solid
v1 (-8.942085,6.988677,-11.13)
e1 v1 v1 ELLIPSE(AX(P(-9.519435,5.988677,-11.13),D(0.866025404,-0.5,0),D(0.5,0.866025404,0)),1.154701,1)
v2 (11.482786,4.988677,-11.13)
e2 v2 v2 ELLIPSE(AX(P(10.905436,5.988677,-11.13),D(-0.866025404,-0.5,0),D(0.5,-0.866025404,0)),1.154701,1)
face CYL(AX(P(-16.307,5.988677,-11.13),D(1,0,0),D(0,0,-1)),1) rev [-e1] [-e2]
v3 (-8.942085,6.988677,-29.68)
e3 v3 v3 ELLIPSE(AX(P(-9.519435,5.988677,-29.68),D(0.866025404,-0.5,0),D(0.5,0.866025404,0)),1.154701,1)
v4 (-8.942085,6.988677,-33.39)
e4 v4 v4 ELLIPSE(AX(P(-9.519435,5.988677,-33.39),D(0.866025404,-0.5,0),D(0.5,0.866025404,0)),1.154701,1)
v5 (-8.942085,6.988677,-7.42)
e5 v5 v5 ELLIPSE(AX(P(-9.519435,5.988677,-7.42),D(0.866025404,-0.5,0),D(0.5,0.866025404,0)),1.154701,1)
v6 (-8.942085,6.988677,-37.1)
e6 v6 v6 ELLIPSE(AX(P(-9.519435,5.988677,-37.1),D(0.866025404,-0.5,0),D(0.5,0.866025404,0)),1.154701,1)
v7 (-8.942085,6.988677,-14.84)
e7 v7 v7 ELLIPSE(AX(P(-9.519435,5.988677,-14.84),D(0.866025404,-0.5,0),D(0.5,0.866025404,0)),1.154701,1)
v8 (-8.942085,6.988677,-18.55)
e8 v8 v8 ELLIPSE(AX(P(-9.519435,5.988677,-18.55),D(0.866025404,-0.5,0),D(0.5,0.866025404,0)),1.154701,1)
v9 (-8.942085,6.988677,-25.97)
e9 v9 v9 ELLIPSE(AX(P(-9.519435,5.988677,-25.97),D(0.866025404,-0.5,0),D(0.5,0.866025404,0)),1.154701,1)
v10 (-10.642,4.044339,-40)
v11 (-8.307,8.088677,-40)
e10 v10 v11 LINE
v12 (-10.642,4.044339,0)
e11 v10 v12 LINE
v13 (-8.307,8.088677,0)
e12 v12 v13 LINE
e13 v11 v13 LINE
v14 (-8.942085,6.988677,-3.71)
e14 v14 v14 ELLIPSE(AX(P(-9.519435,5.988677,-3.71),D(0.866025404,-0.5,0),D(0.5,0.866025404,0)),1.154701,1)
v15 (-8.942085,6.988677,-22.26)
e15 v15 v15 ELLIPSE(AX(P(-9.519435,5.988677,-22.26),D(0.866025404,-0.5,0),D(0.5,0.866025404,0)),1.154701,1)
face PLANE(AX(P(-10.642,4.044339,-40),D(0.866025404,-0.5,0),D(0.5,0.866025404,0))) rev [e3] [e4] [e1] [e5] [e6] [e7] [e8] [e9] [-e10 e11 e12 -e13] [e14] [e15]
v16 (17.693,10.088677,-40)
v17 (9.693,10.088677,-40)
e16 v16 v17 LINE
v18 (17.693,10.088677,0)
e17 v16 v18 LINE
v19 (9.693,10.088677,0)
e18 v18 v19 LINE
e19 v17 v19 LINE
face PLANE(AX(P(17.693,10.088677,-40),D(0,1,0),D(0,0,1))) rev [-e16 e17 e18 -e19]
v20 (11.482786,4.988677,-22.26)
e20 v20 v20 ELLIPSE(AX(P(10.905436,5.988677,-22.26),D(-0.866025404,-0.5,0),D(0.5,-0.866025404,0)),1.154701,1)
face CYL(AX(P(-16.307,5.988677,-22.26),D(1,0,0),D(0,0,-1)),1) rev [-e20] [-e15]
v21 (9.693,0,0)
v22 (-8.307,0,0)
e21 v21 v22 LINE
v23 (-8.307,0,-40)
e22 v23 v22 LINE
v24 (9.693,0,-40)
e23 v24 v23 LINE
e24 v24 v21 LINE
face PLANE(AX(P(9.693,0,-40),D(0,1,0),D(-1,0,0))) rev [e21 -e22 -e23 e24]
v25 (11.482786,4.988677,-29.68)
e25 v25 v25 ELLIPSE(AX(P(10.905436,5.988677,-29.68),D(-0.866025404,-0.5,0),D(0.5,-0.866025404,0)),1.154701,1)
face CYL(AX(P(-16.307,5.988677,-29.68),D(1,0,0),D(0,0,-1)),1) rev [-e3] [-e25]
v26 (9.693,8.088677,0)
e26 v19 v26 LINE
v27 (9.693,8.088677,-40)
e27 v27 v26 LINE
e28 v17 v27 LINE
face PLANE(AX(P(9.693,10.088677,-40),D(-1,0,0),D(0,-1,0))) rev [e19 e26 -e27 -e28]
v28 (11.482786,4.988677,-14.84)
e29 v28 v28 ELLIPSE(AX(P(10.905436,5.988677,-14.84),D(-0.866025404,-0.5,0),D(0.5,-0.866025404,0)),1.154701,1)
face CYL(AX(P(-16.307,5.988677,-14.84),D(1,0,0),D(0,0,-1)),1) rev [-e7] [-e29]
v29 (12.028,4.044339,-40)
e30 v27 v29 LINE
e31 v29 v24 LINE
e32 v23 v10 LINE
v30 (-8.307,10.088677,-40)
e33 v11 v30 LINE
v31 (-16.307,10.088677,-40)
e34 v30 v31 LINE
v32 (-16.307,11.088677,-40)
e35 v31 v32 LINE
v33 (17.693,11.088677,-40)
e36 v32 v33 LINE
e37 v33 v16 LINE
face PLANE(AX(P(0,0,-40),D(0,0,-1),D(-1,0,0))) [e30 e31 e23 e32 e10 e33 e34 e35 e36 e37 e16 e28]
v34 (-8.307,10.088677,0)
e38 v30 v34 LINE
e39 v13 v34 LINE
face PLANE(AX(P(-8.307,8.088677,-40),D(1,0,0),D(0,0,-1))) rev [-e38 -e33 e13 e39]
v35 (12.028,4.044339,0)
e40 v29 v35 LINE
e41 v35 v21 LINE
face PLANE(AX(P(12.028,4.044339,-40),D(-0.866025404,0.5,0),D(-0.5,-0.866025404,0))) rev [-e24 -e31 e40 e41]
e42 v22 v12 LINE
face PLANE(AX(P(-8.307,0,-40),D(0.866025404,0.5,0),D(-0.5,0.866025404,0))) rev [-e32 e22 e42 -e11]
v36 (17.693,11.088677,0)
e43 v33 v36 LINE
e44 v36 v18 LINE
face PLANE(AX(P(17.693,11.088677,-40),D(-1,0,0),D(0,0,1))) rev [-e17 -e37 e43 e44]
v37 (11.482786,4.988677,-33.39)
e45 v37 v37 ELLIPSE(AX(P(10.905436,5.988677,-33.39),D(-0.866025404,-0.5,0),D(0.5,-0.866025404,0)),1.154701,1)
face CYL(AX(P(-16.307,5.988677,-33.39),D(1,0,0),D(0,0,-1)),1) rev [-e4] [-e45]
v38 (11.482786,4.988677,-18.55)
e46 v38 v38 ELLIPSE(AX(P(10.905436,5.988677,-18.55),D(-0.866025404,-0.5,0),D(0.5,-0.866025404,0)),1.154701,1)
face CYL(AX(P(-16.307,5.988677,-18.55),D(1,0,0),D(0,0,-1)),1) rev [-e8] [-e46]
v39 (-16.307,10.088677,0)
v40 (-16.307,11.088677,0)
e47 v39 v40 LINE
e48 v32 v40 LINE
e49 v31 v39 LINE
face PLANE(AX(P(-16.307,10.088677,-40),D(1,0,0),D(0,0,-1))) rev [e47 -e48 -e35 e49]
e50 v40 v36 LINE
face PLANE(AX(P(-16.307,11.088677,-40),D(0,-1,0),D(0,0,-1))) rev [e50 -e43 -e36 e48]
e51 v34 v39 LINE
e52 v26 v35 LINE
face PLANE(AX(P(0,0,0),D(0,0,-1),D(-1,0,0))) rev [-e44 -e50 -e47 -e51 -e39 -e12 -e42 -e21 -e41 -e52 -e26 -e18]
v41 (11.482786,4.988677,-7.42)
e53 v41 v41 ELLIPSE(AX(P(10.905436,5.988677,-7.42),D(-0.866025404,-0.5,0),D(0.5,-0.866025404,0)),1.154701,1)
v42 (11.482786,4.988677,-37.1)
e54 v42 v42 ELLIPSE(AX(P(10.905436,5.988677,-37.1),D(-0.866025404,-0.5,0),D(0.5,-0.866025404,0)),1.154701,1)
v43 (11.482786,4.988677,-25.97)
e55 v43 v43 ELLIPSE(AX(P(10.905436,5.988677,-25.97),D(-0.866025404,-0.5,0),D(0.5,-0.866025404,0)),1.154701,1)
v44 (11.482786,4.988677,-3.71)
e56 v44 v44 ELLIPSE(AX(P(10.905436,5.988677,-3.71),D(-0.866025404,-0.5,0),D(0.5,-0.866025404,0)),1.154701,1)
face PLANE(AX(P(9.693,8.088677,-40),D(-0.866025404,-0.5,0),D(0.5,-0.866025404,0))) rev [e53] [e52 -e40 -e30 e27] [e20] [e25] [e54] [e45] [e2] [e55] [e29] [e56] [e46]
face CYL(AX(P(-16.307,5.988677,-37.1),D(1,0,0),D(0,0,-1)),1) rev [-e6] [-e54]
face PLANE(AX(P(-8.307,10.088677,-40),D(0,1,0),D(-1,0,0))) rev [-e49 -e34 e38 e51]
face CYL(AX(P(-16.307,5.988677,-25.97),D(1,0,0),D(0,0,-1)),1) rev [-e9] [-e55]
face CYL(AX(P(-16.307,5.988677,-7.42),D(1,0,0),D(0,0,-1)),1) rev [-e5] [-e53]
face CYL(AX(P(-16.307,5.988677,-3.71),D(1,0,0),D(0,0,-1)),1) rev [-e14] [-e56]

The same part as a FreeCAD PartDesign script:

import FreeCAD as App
import Part
import Sketcher
from FreeCAD import Vector
Q = App.Units.Quantity


def add_polygon(sketch, points):
    """Adds a closed chain of lines whose ends are joined by coincident constraints."""
    first, n = sketch.GeometryCount, len(points)
    for a, b in zip(points, points[1:] + points[:1]):
        sketch.addGeometry(Part.LineSegment(App.Vector(*a, 0), App.Vector(*b, 0)), False)
    for i in range(n):
        sketch.addConstraint(Sketcher.Constraint("Coincident", first + i, 2, first + (i + 1) % n, 1))

doc = App.newDocument("Part")
body = doc.addObject("PartDesign::Body", "Body")

sketch1 = body.newObject("Sketcher::SketchObject", "Sketch")
sketch1.AttachmentSupport = (doc.getObject("XY_Plane"), [""])
sketch1.MapMode = "FlatFace"
add_polygon(sketch1, [(-8.3, 0), (9.7, 0), (12, 4), (9.7, 8.1), (9.7, 10.1), (17.7, 10.1), (17.7, 11.1), (-16.3, 11.1), (-16.3, 10.1), (-8.3, 10.1), (-8.3, 8.1), (-10.6, 4)])
sketch1.addConstraint([
    Sketcher.Constraint("Horizontal", 0),
    Sketcher.Constraint("Vertical", 3),
    Sketcher.Constraint("Horizontal", 4),
    Sketcher.Constraint("Vertical", 5),
    Sketcher.Constraint("Horizontal", 6),
    Sketcher.Constraint("Vertical", 7),
    Sketcher.Constraint("Horizontal", 8),
    Sketcher.Constraint("Vertical", 9),
    Sketcher.Constraint("PointOnObject", 0, 2, -1),
    Sketcher.Constraint("Parallel", 1, 10),
    Sketcher.Constraint("Parallel", 2, 11),
    Sketcher.Constraint("Horizontal", 4, 2, 7, 2),
    Sketcher.Constraint("Horizontal", 2, 2, 9, 2),
    Sketcher.Constraint("Horizontal", 1, 2, 10, 2),
    Sketcher.Constraint("Vertical", 0, 2, 2, 2),
    Sketcher.Constraint("Vertical", 9, 2, 11, 2),
    Sketcher.Constraint("Equal", 4, 8),
    Sketcher.Constraint("DistanceX", 0, 1, 0, 2, 18.0),
    Sketcher.Constraint("DistanceX", 4, 1, 4, 2, 8.0),
    Sketcher.Constraint("DistanceY", 3, 1, 3, 2, 2.0),
    Sketcher.Constraint("DistanceY", 5, 1, 5, 2, 1.0),
    Sketcher.Constraint("Angle", 1, Q("60 deg")),
    Sketcher.Constraint("Distance", 1, 4.67),
    Sketcher.Constraint("DistanceX", -1, 1, 0, 2, 9.693),
])
pad1 = body.newObject("PartDesign::Pad", "Pad")
pad1.Profile = sketch1
pad1.Length = 40
pad1.Reversed = True

sketch2 = body.newObject("Sketcher::SketchObject", "Sketch001")
sketch2.AttachmentSupport = (doc.getObject("YZ_Plane"), [""])
sketch2.MapMode = "FlatFace"
sketch2.addGeometry(Part.Circle(Vector(6, -3.7, 0), Vector(0, 0, 1), 1), False)
sketch2.addConstraint([
    Sketcher.Constraint("Diameter", 0, 2.0),
    Sketcher.Constraint("DistanceY", 0, 3, -1, 1, 3.71),
    Sketcher.Constraint("DistanceX", -1, 1, 0, 3, 5.988677),
])
pocket1 = body.newObject("PartDesign::Pocket", "Pocket")
pocket1.Profile = sketch2
pocket1.Length = 92.244136
pocket1.Midplane = True
doc.recompute()

linearpattern = body.newObject("PartDesign::LinearPattern", "LinearPattern")
linearpattern.Originals = [pocket1]
linearpattern.Direction = (doc.getObject("Z_Axis"), [""])
linearpattern.Mode = "offset"
linearpattern.Offset = 3.71
linearpattern.Occurrences = 10
linearpattern.Reversed = True
body.Tip = linearpattern

doc.recompute()
